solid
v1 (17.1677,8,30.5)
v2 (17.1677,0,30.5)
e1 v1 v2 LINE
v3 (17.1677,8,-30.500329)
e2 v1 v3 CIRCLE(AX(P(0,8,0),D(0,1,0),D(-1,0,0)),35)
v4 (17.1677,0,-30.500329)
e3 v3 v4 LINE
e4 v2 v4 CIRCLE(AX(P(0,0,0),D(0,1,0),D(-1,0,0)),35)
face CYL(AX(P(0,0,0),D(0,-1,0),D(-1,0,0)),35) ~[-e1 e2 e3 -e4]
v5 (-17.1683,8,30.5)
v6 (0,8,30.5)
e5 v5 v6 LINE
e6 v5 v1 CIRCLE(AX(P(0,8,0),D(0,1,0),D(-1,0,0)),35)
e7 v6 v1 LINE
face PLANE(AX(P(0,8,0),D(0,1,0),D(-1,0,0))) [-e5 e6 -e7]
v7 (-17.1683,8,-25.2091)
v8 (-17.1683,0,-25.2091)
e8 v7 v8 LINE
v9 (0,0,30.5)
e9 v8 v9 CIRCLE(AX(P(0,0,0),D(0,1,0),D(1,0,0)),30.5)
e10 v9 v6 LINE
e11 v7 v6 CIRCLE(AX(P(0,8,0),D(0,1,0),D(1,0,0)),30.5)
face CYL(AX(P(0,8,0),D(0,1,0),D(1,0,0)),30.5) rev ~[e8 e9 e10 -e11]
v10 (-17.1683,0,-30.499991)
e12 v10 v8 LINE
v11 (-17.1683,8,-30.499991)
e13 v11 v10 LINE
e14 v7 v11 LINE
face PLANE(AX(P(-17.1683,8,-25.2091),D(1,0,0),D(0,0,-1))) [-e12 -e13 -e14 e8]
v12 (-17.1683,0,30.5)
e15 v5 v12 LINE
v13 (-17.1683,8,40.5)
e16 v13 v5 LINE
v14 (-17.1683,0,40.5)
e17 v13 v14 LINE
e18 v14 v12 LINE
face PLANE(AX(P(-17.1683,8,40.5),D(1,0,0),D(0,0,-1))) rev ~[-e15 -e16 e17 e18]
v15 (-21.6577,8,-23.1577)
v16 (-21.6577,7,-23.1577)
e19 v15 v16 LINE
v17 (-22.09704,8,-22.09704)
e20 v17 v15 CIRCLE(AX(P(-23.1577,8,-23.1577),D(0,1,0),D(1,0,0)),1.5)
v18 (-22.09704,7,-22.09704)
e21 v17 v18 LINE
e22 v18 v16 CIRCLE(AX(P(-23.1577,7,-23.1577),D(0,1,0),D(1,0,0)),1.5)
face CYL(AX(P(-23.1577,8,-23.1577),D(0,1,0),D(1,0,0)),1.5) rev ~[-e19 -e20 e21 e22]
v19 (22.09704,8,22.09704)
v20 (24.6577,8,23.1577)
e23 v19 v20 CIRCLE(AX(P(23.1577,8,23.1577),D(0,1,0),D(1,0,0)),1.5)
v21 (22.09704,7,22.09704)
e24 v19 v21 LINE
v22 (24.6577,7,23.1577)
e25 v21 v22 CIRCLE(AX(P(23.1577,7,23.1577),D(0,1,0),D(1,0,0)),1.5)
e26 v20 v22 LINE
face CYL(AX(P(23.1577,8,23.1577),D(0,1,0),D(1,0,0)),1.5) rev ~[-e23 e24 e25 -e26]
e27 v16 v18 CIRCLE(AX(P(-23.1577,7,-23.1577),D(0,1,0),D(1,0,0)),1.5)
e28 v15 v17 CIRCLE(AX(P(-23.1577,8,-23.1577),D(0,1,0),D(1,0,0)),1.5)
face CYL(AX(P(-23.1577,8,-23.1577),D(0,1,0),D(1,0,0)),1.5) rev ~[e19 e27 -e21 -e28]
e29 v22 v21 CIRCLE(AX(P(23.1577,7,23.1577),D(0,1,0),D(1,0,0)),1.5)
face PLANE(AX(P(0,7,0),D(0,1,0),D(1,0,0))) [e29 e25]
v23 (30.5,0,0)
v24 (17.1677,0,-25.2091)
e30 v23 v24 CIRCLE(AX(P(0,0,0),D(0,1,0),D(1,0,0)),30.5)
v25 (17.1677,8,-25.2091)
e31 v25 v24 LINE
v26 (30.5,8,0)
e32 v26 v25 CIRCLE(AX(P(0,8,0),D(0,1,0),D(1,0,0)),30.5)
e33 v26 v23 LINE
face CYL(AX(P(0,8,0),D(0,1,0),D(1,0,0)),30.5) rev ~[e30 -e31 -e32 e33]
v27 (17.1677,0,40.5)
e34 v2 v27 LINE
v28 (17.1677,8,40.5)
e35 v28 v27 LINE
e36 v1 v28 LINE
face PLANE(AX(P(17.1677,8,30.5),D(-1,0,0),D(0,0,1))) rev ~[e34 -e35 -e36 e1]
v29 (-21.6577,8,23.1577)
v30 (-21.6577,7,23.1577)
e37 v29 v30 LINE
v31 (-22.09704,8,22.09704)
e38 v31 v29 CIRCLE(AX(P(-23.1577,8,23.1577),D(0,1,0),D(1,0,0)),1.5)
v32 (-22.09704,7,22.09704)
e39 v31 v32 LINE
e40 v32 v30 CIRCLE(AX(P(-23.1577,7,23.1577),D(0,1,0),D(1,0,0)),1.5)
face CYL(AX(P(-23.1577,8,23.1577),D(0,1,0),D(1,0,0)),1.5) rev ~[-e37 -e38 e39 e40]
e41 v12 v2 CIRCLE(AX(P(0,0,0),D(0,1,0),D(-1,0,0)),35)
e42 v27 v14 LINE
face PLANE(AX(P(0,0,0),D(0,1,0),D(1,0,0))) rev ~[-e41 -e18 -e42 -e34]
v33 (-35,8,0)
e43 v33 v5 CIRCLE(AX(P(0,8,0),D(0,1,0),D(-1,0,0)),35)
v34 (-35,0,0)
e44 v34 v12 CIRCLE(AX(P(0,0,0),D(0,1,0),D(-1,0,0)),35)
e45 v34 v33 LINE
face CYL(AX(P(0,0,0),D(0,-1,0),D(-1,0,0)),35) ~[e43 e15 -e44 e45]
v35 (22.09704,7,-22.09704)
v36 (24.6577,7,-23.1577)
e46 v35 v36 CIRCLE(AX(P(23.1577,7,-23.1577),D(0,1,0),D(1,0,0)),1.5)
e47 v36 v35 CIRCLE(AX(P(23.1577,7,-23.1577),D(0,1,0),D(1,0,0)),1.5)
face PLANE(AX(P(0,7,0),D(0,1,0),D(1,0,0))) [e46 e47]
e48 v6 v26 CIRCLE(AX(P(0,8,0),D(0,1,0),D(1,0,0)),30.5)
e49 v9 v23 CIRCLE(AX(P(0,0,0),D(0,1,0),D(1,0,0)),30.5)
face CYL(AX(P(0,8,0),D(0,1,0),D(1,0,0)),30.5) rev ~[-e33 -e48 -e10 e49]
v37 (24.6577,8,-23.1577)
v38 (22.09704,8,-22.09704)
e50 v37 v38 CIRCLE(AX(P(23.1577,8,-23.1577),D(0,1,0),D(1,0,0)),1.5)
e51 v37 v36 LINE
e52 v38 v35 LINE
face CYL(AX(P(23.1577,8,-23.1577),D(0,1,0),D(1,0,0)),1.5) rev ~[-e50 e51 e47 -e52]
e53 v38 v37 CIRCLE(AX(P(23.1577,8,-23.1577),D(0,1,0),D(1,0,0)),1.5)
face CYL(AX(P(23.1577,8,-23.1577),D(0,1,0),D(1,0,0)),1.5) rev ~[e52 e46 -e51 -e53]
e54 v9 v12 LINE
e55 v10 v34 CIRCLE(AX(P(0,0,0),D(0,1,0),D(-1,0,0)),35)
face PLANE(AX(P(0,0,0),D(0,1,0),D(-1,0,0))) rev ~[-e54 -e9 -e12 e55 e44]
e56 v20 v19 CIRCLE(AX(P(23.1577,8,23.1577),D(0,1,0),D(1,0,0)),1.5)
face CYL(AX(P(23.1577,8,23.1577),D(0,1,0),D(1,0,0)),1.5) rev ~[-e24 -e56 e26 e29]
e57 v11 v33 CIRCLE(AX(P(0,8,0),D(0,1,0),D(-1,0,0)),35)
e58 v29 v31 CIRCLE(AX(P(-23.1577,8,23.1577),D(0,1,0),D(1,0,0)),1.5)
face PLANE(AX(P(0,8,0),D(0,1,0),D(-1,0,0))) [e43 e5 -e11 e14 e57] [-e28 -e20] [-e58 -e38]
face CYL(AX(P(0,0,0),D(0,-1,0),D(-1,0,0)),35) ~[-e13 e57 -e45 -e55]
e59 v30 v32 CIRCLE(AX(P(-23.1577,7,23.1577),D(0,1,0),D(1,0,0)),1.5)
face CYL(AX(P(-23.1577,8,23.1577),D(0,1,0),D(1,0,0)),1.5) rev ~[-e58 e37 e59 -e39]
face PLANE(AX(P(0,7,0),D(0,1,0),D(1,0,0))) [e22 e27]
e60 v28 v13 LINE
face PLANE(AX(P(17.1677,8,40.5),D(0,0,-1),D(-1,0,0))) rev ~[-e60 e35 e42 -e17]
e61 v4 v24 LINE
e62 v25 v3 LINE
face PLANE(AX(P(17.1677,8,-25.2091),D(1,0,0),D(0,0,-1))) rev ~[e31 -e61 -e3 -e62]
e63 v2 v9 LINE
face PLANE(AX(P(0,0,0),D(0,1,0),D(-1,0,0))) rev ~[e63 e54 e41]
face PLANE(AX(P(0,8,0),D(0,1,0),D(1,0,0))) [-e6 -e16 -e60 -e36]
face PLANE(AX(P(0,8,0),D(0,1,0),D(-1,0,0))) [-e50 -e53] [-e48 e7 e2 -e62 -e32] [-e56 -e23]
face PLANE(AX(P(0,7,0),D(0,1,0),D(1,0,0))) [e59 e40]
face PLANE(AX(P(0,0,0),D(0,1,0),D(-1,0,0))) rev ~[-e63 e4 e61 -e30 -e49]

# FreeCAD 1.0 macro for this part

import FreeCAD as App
import Part
import Sketcher
from FreeCAD import Vector
Q = App.Units.Quantity

doc = App.newDocument("Part")
body = doc.addObject("PartDesign::Body", "Body")

# Sketch on XZ plane
sketch1 = body.newObject("Sketcher::SketchObject", "Sketch")
sketch1.AttachmentSupport = (doc.getObject("XZ_Plane"), [""])
sketch1.MapMode = "FlatFace"
sketch1.addGeometry(Part.Circle(Vector(0, 0, 0), Vector(0, 0, 1), 35), False)
sketch1.addConstraint(Sketcher.Constraint("Coincident", 0, 3, -1, 1))
sketch1.addConstraint(Sketcher.Constraint("Diameter", 0, Q("70 mm")))
pad1 = body.newObject("PartDesign::Pad", "Pad")
pad1.Profile = sketch1
pad1.Length = 8
pad1.Reversed = True

# Sketch on XZ plane
sketch2 = body.newObject("Sketcher::SketchObject", "Sketch001")
sketch2.AttachmentSupport = (doc.getObject("XZ_Plane"), [""])
sketch2.MapMode = "FlatFace"
sketch2.AttachmentOffset = App.Placement(Vector(0, 0, -8), App.Rotation())
sketch2.addGeometry(Part.Circle(Vector(0, 0, 0), Vector(0, 0, 1), 30), False)
sketch2.addConstraint(Sketcher.Constraint("Coincident", 0, 3, -1, 1))
sketch2.addConstraint(Sketcher.Constraint("Diameter", 0, Q("61 mm")))
pocket1 = body.newObject("PartDesign::Pocket", "Pocket")
pocket1.Profile = sketch2
pocket1.Length = 8
pocket1.Reversed = True

# Sketch on XZ plane
sketch3 = body.newObject("Sketcher::SketchObject", "Sketch002")
sketch3.AttachmentSupport = (doc.getObject("XZ_Plane"), [""])
sketch3.MapMode = "FlatFace"
sketch3.AttachmentOffset = App.Placement(Vector(0, 0, -8), App.Rotation())
sketch3.addGeometry(Part.LineSegment(Vector(17, 30, 0), Vector(-17, 30, 0)), False)
sketch3.addGeometry(Part.LineSegment(Vector(-17, 30, 0), Vector(-17, 40, 0)), False)
sketch3.addGeometry(Part.LineSegment(Vector(-17, 40, 0), Vector(17, 40, 0)), False)
sketch3.addGeometry(Part.LineSegment(Vector(17, 40, 0), Vector(17, 30, 0)), False)
sketch3.addConstraint(Sketcher.Constraint("Coincident", 0, 2, 1, 1))
sketch3.addConstraint(Sketcher.Constraint("Coincident", 1, 2, 2, 1))
sketch3.addConstraint(Sketcher.Constraint("Coincident", 2, 2, 3, 1))
sketch3.addConstraint(Sketcher.Constraint("Coincident", 3, 2, 0, 1))
sketch3.addConstraint(Sketcher.Constraint("Horizontal", 0))
sketch3.addConstraint(Sketcher.Constraint("Vertical", 1))
sketch3.addConstraint(Sketcher.Constraint("Horizontal", 2))
sketch3.addConstraint(Sketcher.Constraint("Vertical", 3))
sketch3.addConstraint(Sketcher.Constraint("DistanceY", 1, 1, 1, 2, Q("10 mm")))
sketch3.addConstraint(Sketcher.Constraint("DistanceX", 0, 2, 0, 1, Q("34.336 mm")))
sketch3.addConstraint(Sketcher.Constraint("DistanceY", -1, 1, 0, 2, Q("30.5 mm")))
sketch3.addConstraint(Sketcher.Constraint("DistanceX", 0, 2, -1, 1, Q("17.1683 mm")))
pad2 = body.newObject("PartDesign::Pad", "Pad001")
pad2.Profile = sketch3
pad2.Length = 8

# Sketch on XZ plane
sketch4 = body.newObject("Sketcher::SketchObject", "Sketch003")
sketch4.AttachmentSupport = (doc.getObject("XZ_Plane"), [""])
sketch4.MapMode = "FlatFace"
sketch4.AttachmentOffset = App.Placement(Vector(0, 0, -8), App.Rotation())
sketch4.addGeometry(Part.LineSegment(Vector(-17, -25, 0), Vector(17, -25, 0)), False)
sketch4.addGeometry(Part.LineSegment(Vector(17, -25, 0), Vector(17, -37, 0)), False)
sketch4.addGeometry(Part.LineSegment(Vector(17, -37, 0), Vector(-17, -37, 0)), False)
sketch4.addGeometry(Part.LineSegment(Vector(-17, -37, 0), Vector(-17, -25, 0)), False)
sketch4.addConstraint(Sketcher.Constraint("Coincident", 0, 2, 1, 1))
sketch4.addConstraint(Sketcher.Constraint("Coincident", 1, 2, 2, 1))
sketch4.addConstraint(Sketcher.Constraint("Coincident", 2, 2, 3, 1))
sketch4.addConstraint(Sketcher.Constraint("Coincident", 3, 2, 0, 1))
sketch4.addConstraint(Sketcher.Constraint("Horizontal", 0))
sketch4.addConstraint(Sketcher.Constraint("Vertical", 1))
sketch4.addConstraint(Sketcher.Constraint("Horizontal", 2))
sketch4.addConstraint(Sketcher.Constraint("Vertical", 3))
sketch4.addConstraint(Sketcher.Constraint("DistanceX", 0, 1, 0, 2, Q("34.336 mm")))
sketch4.addConstraint(Sketcher.Constraint("DistanceY", 1, 2, 1, 1, Q("12.031 mm")))
sketch4.addConstraint(Sketcher.Constraint("DistanceY", 0, 2, -1, 1, Q("25.209 mm")))
sketch4.addConstraint(Sketcher.Constraint("DistanceX", -1, 1, 0, 2, Q("17.1677 mm")))
pocket2 = body.newObject("PartDesign::Pocket", "Pocket001")
pocket2.Profile = sketch4
pocket2.Length = 8
pocket2.Reversed = True

# Sketch on XZ plane
sketch5 = body.newObject("Sketcher::SketchObject", "Sketch004")
sketch5.AttachmentSupport = (doc.getObject("XZ_Plane"), [""])
sketch5.MapMode = "FlatFace"
sketch5.AttachmentOffset = App.Placement(Vector(0, 0, -8), App.Rotation())
sketch5.addGeometry(Part.Circle(Vector(-23.2, -23.2, 0), Vector(0, 0, 1), 1.5), False)
sketch5.addConstraint(Sketcher.Constraint("Diameter", 0, Q("3 mm")))
sketch5.addConstraint(Sketcher.Constraint("DistanceX", 0, 3, -1, 1, Q("23.1577 mm")))
sketch5.addConstraint(Sketcher.Constraint("DistanceY", 0, 3, -1, 1, Q("23.1577 mm")))
pocket3 = body.newObject("PartDesign::Pocket", "Pocket002")
pocket3.Profile = sketch5
pocket3.Length = 1
pocket3.Reversed = True

# Sketch on XZ plane
sketch6 = body.newObject("Sketcher::SketchObject", "Sketch005")
sketch6.AttachmentSupport = (doc.getObject("XZ_Plane"), [""])
sketch6.MapMode = "FlatFace"
sketch6.AttachmentOffset = App.Placement(Vector(0, 0, -8), App.Rotation())
sketch6.addGeometry(Part.Circle(Vector(-23.2, 23.2, 0), Vector(0, 0, 1), 1.5), False)
sketch6.addConstraint(Sketcher.Constraint("Diameter", 0, Q("3 mm")))
sketch6.addConstraint(Sketcher.Constraint("DistanceX", 0, 3, -1, 1, Q("23.1577 mm")))
sketch6.addConstraint(Sketcher.Constraint("DistanceY", -1, 1, 0, 3, Q("23.1577 mm")))
pocket4 = body.newObject("PartDesign::Pocket", "Pocket003")
pocket4.Profile = sketch6
pocket4.Length = 1
pocket4.Reversed = True

# Sketch on XZ plane
sketch7 = body.newObject("Sketcher::SketchObject", "Sketch006")
sketch7.AttachmentSupport = (doc.getObject("XZ_Plane"), [""])
sketch7.MapMode = "FlatFace"
sketch7.AttachmentOffset = App.Placement(Vector(0, 0, -8), App.Rotation())
sketch7.addGeometry(Part.Circle(Vector(23.2, 23.2, 0), Vector(0, 0, 1), 1.5), False)
sketch7.addConstraint(Sketcher.Constraint("Diameter", 0, Q("3 mm")))
sketch7.addConstraint(Sketcher.Constraint("DistanceX", -1, 1, 0, 3, Q("23.1577 mm")))
sketch7.addConstraint(Sketcher.Constraint("DistanceY", -1, 1, 0, 3, Q("23.1577 mm")))
pocket5 = body.newObject("PartDesign::Pocket", "Pocket004")
pocket5.Profile = sketch7
pocket5.Length = 1
pocket5.Reversed = True

# Sketch on XZ plane
sketch8 = body.newObject("Sketcher::SketchObject", "Sketch007")
sketch8.AttachmentSupport = (doc.getObject("XZ_Plane"), [""])
sketch8.MapMode = "FlatFace"
sketch8.AttachmentOffset = App.Placement(Vector(0, 0, -8), App.Rotation())
sketch8.addGeometry(Part.Circle(Vector(23.2, -23.2, 0), Vector(0, 0, 1), 1.5), False)
sketch8.addConstraint(Sketcher.Constraint("Diameter", 0, Q("3 mm")))
sketch8.addConstraint(Sketcher.Constraint("DistanceX", -1, 1, 0, 3, Q("23.1577 mm")))
sketch8.addConstraint(Sketcher.Constraint("DistanceY", 0, 3, -1, 1, Q("23.1577 mm")))
pocket6 = body.newObject("PartDesign::Pocket", "Pocket005")
pocket6.Profile = sketch8
pocket6.Length = 1
pocket6.Reversed = True

doc.recompute()
